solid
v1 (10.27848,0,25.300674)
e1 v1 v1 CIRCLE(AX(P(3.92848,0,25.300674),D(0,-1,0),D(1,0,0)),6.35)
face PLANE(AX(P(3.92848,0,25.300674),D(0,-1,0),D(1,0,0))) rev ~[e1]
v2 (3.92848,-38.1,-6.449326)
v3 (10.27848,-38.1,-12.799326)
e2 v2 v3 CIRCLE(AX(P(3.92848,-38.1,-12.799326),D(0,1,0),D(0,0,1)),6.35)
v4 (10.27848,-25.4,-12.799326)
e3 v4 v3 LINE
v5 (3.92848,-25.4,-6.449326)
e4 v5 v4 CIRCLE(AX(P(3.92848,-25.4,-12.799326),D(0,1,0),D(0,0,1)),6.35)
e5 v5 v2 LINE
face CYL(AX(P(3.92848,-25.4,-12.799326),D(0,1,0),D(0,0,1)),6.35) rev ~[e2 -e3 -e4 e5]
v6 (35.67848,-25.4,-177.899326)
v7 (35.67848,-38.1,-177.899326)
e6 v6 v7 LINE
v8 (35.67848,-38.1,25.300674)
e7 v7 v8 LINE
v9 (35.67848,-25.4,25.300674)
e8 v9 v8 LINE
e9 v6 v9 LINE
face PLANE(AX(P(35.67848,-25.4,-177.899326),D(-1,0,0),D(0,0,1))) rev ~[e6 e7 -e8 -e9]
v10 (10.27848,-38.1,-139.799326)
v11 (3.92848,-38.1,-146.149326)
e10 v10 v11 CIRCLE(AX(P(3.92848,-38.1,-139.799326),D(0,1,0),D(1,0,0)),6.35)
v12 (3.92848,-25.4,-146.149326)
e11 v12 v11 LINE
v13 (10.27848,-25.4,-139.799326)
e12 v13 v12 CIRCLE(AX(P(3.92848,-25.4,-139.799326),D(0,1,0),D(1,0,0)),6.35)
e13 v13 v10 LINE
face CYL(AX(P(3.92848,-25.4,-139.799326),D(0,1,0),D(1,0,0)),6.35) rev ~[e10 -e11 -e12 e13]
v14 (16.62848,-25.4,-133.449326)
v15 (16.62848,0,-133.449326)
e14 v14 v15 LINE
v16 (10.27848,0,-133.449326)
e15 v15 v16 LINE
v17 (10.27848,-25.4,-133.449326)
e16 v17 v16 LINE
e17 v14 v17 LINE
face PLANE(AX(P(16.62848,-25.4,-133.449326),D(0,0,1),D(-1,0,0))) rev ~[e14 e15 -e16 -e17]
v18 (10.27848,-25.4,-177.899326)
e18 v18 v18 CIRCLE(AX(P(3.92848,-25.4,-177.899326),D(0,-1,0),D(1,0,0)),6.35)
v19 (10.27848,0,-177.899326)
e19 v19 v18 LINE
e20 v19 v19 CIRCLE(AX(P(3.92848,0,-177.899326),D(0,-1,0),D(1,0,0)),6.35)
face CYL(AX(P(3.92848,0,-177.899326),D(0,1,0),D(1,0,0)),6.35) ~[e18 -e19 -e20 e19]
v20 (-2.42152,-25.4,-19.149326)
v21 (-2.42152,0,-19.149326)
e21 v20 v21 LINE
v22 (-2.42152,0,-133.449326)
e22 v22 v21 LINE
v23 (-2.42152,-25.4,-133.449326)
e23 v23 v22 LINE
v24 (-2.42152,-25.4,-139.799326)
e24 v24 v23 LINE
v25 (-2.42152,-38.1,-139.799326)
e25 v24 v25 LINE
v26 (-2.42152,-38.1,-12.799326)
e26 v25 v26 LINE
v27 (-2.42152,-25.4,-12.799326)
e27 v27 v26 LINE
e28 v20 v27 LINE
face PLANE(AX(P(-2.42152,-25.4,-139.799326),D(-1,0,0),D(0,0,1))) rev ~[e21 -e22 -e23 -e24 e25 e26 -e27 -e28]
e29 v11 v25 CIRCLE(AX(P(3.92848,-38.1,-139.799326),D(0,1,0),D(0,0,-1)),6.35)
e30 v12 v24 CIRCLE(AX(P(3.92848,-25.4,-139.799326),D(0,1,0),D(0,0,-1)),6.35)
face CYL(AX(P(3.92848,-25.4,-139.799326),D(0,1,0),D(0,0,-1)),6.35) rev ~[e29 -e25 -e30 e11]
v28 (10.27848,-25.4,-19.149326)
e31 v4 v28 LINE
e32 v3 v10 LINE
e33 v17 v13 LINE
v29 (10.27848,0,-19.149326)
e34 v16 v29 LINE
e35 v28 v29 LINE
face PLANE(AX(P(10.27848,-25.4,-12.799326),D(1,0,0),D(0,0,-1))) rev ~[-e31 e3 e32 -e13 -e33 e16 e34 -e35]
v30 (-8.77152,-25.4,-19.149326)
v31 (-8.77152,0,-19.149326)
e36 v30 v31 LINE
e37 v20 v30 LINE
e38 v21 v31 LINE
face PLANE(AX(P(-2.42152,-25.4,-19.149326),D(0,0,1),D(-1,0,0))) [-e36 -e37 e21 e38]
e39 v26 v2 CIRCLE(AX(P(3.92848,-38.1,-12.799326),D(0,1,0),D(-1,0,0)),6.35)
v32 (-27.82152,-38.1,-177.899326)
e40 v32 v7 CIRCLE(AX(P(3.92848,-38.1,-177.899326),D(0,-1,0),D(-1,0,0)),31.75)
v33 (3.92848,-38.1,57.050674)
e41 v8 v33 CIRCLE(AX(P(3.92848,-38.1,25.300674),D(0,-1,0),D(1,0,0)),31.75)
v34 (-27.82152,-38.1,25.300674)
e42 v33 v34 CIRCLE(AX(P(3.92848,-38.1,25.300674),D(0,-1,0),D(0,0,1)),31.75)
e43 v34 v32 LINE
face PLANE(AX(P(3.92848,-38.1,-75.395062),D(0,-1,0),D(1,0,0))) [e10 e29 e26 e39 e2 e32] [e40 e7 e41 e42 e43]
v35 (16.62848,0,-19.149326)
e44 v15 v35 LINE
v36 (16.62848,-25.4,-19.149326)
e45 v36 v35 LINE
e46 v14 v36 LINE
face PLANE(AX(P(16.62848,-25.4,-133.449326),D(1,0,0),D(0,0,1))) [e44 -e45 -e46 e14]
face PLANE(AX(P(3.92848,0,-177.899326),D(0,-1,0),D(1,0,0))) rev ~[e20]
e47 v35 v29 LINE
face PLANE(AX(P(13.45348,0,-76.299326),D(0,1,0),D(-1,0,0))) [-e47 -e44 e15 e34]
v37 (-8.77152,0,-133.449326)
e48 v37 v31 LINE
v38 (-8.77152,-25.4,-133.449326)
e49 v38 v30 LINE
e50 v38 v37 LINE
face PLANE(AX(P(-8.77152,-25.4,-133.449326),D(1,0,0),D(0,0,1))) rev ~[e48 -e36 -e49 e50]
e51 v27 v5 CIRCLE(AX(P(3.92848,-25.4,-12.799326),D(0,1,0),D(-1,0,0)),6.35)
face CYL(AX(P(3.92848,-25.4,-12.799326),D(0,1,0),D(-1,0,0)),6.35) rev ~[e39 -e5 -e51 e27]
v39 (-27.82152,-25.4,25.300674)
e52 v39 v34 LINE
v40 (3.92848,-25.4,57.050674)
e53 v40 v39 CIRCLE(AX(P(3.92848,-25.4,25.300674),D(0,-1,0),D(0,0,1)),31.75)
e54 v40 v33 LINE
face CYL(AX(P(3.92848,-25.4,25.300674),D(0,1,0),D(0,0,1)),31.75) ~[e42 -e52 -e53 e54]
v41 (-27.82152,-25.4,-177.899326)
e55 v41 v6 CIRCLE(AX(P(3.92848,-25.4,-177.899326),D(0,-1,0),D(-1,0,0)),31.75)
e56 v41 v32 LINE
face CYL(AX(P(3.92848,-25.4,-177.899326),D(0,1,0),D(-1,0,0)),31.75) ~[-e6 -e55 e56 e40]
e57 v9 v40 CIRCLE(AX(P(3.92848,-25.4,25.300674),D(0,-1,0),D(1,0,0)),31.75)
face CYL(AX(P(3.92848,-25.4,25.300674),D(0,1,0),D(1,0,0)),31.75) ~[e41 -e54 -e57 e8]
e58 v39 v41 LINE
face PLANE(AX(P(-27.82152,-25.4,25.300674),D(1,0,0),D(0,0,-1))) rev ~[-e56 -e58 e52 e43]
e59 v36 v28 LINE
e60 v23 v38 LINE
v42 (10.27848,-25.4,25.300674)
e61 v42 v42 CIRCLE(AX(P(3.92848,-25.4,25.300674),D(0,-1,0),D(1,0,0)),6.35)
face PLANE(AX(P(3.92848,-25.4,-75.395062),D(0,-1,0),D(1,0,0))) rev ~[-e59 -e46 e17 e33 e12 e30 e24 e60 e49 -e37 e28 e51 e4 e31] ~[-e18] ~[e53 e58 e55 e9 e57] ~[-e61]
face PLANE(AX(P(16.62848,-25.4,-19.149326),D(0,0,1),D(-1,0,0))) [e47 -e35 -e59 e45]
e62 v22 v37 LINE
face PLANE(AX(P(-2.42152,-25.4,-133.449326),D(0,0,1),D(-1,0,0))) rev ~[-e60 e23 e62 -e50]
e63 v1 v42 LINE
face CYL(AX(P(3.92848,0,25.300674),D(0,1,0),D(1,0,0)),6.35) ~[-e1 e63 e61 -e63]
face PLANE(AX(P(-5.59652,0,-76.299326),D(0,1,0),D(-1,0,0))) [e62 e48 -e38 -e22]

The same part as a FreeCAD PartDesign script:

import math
import FreeCAD as App
import Part
import Sketcher
from FreeCAD import Vector
Q = App.Units.Quantity


def add_polygon(sketch, points):
    """Adds a closed chain of lines whose ends are joined by coincident constraints."""
    first, n = sketch.GeometryCount, len(points)
    for a, b in zip(points, points[1:] + points[:1]):
        sketch.addGeometry(Part.LineSegment(App.Vector(*a, 0), App.Vector(*b, 0)), False)
    for i in range(n):
        sketch.addConstraint(Sketcher.Constraint("Coincident", first + i, 2, first + (i + 1) % n, 1))

doc = App.newDocument("Part")
body = doc.addObject("PartDesign::Body", "Body")

# Sketch on XZ plane
sketch1 = body.newObject("Sketcher::SketchObject", "Sketch")
sketch1.AttachmentSupport = (doc.getObject("XZ_Plane"), [""])
sketch1.MapMode = "FlatFace"
sketch1.addGeometry(Part.Circle(Vector(3.92848, 25.300674, 0), Vector(0, 0, 1), 6.35), False)
sketch1.addConstraint(Sketcher.Constraint("Diameter", 0, Q("0.5 in")))
sketch1.addConstraint(Sketcher.Constraint("DistanceX", -1, 1, 0, 3, Q("3.92848 mm")))
sketch1.addConstraint(Sketcher.Constraint("DistanceY", -1, 1, 0, 3, Q("25.300674 mm")))
pad1 = body.newObject("PartDesign::Pad", "Pad")
pad1.Profile = sketch1
pad1.Length = Q("1 in")
body2 = doc.addObject("PartDesign::Body", "Body001")

# Sketch on XZ plane
sketch2 = body2.newObject("Sketcher::SketchObject", "Sketch001")
sketch2.AttachmentSupport = (doc.getObject("XZ_Plane001"), [""])
sketch2.MapMode = "FlatFace"
sketch2.addGeometry(Part.Circle(Vector(3.92848, -177.899326, 0), Vector(0, 0, 1), 6.35), False)
sketch2.addConstraint(Sketcher.Constraint("Diameter", 0, Q("0.5 in")))
sketch2.addConstraint(Sketcher.Constraint("DistanceX", -1, 1, 0, 3, Q("3.92848 mm")))
sketch2.addConstraint(Sketcher.Constraint("DistanceY", 0, 3, -1, 1, Q("177.899326 mm")))
pad2 = body2.newObject("PartDesign::Pad", "Pad001")
pad2.Profile = sketch2
pad2.Length = Q("1 in")
body.AllowCompound = True
doc.recompute()

boolean = body.newObject("PartDesign::Boolean", "Boolean")
boolean.Type = "Fuse"
boolean.addObjects([body2])

# Sketch on XZ plane
sketch3 = body.newObject("Sketcher::SketchObject", "Sketch002")
sketch3.AttachmentSupport = (doc.getObject("XZ_Plane"), [""])
sketch3.MapMode = "FlatFace"
sketch3.AttachmentOffset = App.Placement(Vector(0, 0, 1 * 25.4), App.Rotation())
sketch3.addGeometry(Part.ArcOfCircle(Part.Circle(Vector(3.92848, 25.300674, 0), Vector(0, 0, 1), 31.75), math.radians(90), math.radians(180)), False)
sketch3.addGeometry(Part.LineSegment(Vector(-27.82152, 25.300674, 0), Vector(-27.82152, -177.899326, 0)), False)
sketch3.addGeometry(Part.ArcOfCircle(Part.Circle(Vector(3.92848, -177.899326, 0), Vector(0, 0, 1), 31.75), math.radians(-180), math.radians(0)), False)
sketch3.addGeometry(Part.LineSegment(Vector(35.67848, -177.899326, 0), Vector(35.67848, 25.300674, 0)), False)
sketch3.addGeometry(Part.ArcOfCircle(Part.Circle(Vector(3.92848, 25.300674, 0), Vector(0, 0, 1), 31.75), math.radians(0), math.radians(90)), False)
sketch3.addGeometry(Part.ArcOfCircle(Part.Circle(Vector(3.92848, -12.799326, 0), Vector(0, 0, 1), 6.35), math.radians(90), math.radians(180)), False)
sketch3.addGeometry(Part.ArcOfCircle(Part.Circle(Vector(3.92848, -12.799326, 0), Vector(0, 0, 1), 6.35), math.radians(0), math.radians(90)), False)
sketch3.addGeometry(Part.LineSegment(Vector(10.27848, -12.799326, 0), Vector(10.27848, -139.799326, 0)), False)
sketch3.addGeometry(Part.ArcOfCircle(Part.Circle(Vector(3.92848, -139.799326, 0), Vector(0, 0, 1), 6.35), math.radians(-90), math.radians(0)), False)
sketch3.addGeometry(Part.ArcOfCircle(Part.Circle(Vector(3.92848, -139.799326, 0), Vector(0, 0, 1), 6.35), math.radians(180), math.radians(270)), False)
sketch3.addGeometry(Part.LineSegment(Vector(-2.42152, -139.799326, 0), Vector(-2.42152, -12.799326, 0)), False)
sketch3.addConstraint(Sketcher.Constraint("Tangent", 0, 2, 1, 1))
sketch3.addConstraint(Sketcher.Constraint("Tangent", 1, 2, 2, 1))
sketch3.addConstraint(Sketcher.Constraint("Tangent", 2, 2, 3, 1))
sketch3.addConstraint(Sketcher.Constraint("Tangent", 3, 2, 4, 1))
sketch3.addConstraint(Sketcher.Constraint("Tangent", 4, 2, 0, 1))
sketch3.addConstraint(Sketcher.Constraint("Tangent", 5, 1, 6, 2))
sketch3.addConstraint(Sketcher.Constraint("Tangent", 6, 1, 7, 1))
sketch3.addConstraint(Sketcher.Constraint("Tangent", 7, 2, 8, 2))
sketch3.addConstraint(Sketcher.Constraint("Tangent", 8, 1, 9, 2))
sketch3.addConstraint(Sketcher.Constraint("Tangent", 9, 1, 10, 1))
sketch3.addConstraint(Sketcher.Constraint("Tangent", 10, 2, 5, 2))
sketch3.addConstraint(Sketcher.Constraint("Vertical", 1))
sketch3.addConstraint(Sketcher.Constraint("Vertical", 3))
sketch3.addConstraint(Sketcher.Constraint("Vertical", 7))
sketch3.addConstraint(Sketcher.Constraint("Vertical", 10))
sketch3.addConstraint(Sketcher.Constraint("Equal", 0, 2))
sketch3.addConstraint(Sketcher.Constraint("Equal", 5, 6))
sketch3.addConstraint(Sketcher.Constraint("Equal", 6, 8))
sketch3.addConstraint(Sketcher.Constraint("Vertical", 4, 3, 5, 3))
sketch3.addConstraint(Sketcher.Constraint("Vertical", 9, 3, 4, 2))
sketch3.addConstraint(Sketcher.Constraint("Vertical", 4, 2, 5, 1))
sketch3.addConstraint(Sketcher.Constraint("Vertical", 5, 1, 8, 1))
sketch3.addConstraint(Sketcher.Constraint("DistanceY", 1, 2, 1, 1, Q("8 in")))
sketch3.addConstraint(Sketcher.Constraint("DistanceY", 7, 2, 7, 1, Q("5 in")))
sketch3.addConstraint(Sketcher.Constraint("Radius", 0, Q("1.25 in")))
sketch3.addConstraint(Sketcher.Constraint("Radius", 5, Q("0.25 in")))
sketch3.addConstraint(Sketcher.Constraint("DistanceY", 5, 3, 0, 3, Q("1.5 in")))
sketch3.addConstraint(Sketcher.Constraint("DistanceX", -1, 1, 0, 3, Q("3.92848 mm")))
sketch3.addConstraint(Sketcher.Constraint("DistanceY", -1, 1, 0, 3, Q("25.300674 mm")))
pad3 = body.newObject("PartDesign::Pad", "Pad002")
pad3.Profile = sketch3
pad3.Length = Q("0.5 in")

# Sketch on XZ plane
sketch4 = body.newObject("Sketcher::SketchObject", "Sketch003")
sketch4.AttachmentSupport = (doc.getObject("XZ_Plane"), [""])
sketch4.MapMode = "FlatFace"
sketch4.AttachmentOffset = App.Placement(Vector(0, 0, 1 * 25.4), App.Rotation())
add_polygon(sketch4, [(-2.42152, -19.149326), (-2.42152, -133.449326), (-8.77152, -133.449326), (-8.77152, -19.149326)])  # lines 0-3
add_polygon(sketch4, [(16.62848, -19.149326), (16.62848, -133.449326), (10.27848, -133.449326), (10.27848, -19.149326)])  # lines 4-7
sketch4.addConstraint(Sketcher.Constraint("Vertical", 0))
sketch4.addConstraint(Sketcher.Constraint("Horizontal", 1))
sketch4.addConstraint(Sketcher.Constraint("Vertical", 2))
sketch4.addConstraint(Sketcher.Constraint("Horizontal", 3))
sketch4.addConstraint(Sketcher.Constraint("Vertical", 4))
sketch4.addConstraint(Sketcher.Constraint("Horizontal", 5))
sketch4.addConstraint(Sketcher.Constraint("Vertical", 6))
sketch4.addConstraint(Sketcher.Constraint("Horizontal", 7))
sketch4.addConstraint(Sketcher.Constraint("Horizontal", 1, 2, 4, 2))
sketch4.addConstraint(Sketcher.Constraint("Horizontal", 3, 2, 6, 2))
sketch4.addConstraint(Sketcher.Constraint("Equal", 3, 5))
sketch4.addConstraint(Sketcher.Constraint("DistanceY", 0, 2, 0, 1, Q("4.5 in")))
sketch4.addConstraint(Sketcher.Constraint("DistanceX", 1, 2, 4, 2, Q("1 in")))
sketch4.addConstraint(Sketcher.Constraint("DistanceX", 1, 2, 1, 1, Q("0.25 in")))
sketch4.addConstraint(Sketcher.Constraint("DistanceX", 0, 2, -1, 1, Q("2.42152 mm")))
sketch4.addConstraint(Sketcher.Constraint("DistanceY", 0, 2, -1, 1, Q("133.449326 mm")))
pad4 = body.newObject("PartDesign::Pad", "Pad003")
pad4.Profile = sketch4
pad4.Length = Q("1 in")
pad4.Reversed = True

doc.recompute()
